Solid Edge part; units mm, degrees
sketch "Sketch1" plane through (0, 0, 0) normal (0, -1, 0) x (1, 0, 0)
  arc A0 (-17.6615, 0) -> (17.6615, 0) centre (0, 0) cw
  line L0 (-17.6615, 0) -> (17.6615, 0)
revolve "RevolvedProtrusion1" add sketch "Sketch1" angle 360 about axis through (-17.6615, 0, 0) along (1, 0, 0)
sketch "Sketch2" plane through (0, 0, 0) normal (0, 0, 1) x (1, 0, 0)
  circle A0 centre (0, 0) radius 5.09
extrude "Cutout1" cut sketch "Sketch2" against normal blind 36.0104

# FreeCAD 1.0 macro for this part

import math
import FreeCAD as App
import Part
import Sketcher

V = App.Vector

doc = App.newDocument("Part")
body = doc.addObject("PartDesign::Body", "Body")

# Sketch on XZ plane
sketch1 = body.newObject("Sketcher::SketchObject", "Sketch")
sketch1.AttachmentSupport = (doc.getObject("XZ_Plane"), [""])
sketch1.MapMode = "FlatFace"
sketch1.addGeometry(Part.ArcOfCircle(Part.Circle(V(0, 0, 0), V(0, 0, 1), 17.6615), math.radians(0), math.radians(180)), False)
sketch1.addGeometry(Part.LineSegment(V(-17.6615, 0, 0), V(17.6615, 0, 0)), False)
sketch1.addConstraint(Sketcher.Constraint("Coincident", 0, 1, 1, 2))
sketch1.addConstraint(Sketcher.Constraint("Coincident", 1, 1, 0, 2))
sketch1.addConstraint(Sketcher.Constraint("Horizontal", 1))
sketch1.addConstraint(Sketcher.Constraint("Coincident", 0, 3, -1, 1))
sketch1.addConstraint(Sketcher.Constraint("PointOnObject", 0, 1, -1))
sketch1.addConstraint(Sketcher.Constraint("Radius", 0, 17.6615))
revolution = body.newObject("PartDesign::Revolution", "Revolution")
revolution.Profile = sketch1
revolution.ReferenceAxis = (sketch1, ["H_Axis"])
revolution.Angle = 360

# Sketch on XY plane
sketch2 = body.newObject("Sketcher::SketchObject", "Sketch001")
sketch2.AttachmentSupport = (doc.getObject("XY_Plane"), [""])
sketch2.MapMode = "FlatFace"
sketch2.addGeometry(Part.Circle(V(0, 0, 0), V(0, 0, 1), 5.09), False)
sketch2.addConstraint(Sketcher.Constraint("Coincident", 0, 3, -1, 1))
sketch2.addConstraint(Sketcher.Constraint("Diameter", 0, 10.18))
pocket1 = body.newObject("PartDesign::Pocket", "Pocket")
pocket1.Profile = sketch2
pocket1.Length = 36.0104

doc.recompute()
